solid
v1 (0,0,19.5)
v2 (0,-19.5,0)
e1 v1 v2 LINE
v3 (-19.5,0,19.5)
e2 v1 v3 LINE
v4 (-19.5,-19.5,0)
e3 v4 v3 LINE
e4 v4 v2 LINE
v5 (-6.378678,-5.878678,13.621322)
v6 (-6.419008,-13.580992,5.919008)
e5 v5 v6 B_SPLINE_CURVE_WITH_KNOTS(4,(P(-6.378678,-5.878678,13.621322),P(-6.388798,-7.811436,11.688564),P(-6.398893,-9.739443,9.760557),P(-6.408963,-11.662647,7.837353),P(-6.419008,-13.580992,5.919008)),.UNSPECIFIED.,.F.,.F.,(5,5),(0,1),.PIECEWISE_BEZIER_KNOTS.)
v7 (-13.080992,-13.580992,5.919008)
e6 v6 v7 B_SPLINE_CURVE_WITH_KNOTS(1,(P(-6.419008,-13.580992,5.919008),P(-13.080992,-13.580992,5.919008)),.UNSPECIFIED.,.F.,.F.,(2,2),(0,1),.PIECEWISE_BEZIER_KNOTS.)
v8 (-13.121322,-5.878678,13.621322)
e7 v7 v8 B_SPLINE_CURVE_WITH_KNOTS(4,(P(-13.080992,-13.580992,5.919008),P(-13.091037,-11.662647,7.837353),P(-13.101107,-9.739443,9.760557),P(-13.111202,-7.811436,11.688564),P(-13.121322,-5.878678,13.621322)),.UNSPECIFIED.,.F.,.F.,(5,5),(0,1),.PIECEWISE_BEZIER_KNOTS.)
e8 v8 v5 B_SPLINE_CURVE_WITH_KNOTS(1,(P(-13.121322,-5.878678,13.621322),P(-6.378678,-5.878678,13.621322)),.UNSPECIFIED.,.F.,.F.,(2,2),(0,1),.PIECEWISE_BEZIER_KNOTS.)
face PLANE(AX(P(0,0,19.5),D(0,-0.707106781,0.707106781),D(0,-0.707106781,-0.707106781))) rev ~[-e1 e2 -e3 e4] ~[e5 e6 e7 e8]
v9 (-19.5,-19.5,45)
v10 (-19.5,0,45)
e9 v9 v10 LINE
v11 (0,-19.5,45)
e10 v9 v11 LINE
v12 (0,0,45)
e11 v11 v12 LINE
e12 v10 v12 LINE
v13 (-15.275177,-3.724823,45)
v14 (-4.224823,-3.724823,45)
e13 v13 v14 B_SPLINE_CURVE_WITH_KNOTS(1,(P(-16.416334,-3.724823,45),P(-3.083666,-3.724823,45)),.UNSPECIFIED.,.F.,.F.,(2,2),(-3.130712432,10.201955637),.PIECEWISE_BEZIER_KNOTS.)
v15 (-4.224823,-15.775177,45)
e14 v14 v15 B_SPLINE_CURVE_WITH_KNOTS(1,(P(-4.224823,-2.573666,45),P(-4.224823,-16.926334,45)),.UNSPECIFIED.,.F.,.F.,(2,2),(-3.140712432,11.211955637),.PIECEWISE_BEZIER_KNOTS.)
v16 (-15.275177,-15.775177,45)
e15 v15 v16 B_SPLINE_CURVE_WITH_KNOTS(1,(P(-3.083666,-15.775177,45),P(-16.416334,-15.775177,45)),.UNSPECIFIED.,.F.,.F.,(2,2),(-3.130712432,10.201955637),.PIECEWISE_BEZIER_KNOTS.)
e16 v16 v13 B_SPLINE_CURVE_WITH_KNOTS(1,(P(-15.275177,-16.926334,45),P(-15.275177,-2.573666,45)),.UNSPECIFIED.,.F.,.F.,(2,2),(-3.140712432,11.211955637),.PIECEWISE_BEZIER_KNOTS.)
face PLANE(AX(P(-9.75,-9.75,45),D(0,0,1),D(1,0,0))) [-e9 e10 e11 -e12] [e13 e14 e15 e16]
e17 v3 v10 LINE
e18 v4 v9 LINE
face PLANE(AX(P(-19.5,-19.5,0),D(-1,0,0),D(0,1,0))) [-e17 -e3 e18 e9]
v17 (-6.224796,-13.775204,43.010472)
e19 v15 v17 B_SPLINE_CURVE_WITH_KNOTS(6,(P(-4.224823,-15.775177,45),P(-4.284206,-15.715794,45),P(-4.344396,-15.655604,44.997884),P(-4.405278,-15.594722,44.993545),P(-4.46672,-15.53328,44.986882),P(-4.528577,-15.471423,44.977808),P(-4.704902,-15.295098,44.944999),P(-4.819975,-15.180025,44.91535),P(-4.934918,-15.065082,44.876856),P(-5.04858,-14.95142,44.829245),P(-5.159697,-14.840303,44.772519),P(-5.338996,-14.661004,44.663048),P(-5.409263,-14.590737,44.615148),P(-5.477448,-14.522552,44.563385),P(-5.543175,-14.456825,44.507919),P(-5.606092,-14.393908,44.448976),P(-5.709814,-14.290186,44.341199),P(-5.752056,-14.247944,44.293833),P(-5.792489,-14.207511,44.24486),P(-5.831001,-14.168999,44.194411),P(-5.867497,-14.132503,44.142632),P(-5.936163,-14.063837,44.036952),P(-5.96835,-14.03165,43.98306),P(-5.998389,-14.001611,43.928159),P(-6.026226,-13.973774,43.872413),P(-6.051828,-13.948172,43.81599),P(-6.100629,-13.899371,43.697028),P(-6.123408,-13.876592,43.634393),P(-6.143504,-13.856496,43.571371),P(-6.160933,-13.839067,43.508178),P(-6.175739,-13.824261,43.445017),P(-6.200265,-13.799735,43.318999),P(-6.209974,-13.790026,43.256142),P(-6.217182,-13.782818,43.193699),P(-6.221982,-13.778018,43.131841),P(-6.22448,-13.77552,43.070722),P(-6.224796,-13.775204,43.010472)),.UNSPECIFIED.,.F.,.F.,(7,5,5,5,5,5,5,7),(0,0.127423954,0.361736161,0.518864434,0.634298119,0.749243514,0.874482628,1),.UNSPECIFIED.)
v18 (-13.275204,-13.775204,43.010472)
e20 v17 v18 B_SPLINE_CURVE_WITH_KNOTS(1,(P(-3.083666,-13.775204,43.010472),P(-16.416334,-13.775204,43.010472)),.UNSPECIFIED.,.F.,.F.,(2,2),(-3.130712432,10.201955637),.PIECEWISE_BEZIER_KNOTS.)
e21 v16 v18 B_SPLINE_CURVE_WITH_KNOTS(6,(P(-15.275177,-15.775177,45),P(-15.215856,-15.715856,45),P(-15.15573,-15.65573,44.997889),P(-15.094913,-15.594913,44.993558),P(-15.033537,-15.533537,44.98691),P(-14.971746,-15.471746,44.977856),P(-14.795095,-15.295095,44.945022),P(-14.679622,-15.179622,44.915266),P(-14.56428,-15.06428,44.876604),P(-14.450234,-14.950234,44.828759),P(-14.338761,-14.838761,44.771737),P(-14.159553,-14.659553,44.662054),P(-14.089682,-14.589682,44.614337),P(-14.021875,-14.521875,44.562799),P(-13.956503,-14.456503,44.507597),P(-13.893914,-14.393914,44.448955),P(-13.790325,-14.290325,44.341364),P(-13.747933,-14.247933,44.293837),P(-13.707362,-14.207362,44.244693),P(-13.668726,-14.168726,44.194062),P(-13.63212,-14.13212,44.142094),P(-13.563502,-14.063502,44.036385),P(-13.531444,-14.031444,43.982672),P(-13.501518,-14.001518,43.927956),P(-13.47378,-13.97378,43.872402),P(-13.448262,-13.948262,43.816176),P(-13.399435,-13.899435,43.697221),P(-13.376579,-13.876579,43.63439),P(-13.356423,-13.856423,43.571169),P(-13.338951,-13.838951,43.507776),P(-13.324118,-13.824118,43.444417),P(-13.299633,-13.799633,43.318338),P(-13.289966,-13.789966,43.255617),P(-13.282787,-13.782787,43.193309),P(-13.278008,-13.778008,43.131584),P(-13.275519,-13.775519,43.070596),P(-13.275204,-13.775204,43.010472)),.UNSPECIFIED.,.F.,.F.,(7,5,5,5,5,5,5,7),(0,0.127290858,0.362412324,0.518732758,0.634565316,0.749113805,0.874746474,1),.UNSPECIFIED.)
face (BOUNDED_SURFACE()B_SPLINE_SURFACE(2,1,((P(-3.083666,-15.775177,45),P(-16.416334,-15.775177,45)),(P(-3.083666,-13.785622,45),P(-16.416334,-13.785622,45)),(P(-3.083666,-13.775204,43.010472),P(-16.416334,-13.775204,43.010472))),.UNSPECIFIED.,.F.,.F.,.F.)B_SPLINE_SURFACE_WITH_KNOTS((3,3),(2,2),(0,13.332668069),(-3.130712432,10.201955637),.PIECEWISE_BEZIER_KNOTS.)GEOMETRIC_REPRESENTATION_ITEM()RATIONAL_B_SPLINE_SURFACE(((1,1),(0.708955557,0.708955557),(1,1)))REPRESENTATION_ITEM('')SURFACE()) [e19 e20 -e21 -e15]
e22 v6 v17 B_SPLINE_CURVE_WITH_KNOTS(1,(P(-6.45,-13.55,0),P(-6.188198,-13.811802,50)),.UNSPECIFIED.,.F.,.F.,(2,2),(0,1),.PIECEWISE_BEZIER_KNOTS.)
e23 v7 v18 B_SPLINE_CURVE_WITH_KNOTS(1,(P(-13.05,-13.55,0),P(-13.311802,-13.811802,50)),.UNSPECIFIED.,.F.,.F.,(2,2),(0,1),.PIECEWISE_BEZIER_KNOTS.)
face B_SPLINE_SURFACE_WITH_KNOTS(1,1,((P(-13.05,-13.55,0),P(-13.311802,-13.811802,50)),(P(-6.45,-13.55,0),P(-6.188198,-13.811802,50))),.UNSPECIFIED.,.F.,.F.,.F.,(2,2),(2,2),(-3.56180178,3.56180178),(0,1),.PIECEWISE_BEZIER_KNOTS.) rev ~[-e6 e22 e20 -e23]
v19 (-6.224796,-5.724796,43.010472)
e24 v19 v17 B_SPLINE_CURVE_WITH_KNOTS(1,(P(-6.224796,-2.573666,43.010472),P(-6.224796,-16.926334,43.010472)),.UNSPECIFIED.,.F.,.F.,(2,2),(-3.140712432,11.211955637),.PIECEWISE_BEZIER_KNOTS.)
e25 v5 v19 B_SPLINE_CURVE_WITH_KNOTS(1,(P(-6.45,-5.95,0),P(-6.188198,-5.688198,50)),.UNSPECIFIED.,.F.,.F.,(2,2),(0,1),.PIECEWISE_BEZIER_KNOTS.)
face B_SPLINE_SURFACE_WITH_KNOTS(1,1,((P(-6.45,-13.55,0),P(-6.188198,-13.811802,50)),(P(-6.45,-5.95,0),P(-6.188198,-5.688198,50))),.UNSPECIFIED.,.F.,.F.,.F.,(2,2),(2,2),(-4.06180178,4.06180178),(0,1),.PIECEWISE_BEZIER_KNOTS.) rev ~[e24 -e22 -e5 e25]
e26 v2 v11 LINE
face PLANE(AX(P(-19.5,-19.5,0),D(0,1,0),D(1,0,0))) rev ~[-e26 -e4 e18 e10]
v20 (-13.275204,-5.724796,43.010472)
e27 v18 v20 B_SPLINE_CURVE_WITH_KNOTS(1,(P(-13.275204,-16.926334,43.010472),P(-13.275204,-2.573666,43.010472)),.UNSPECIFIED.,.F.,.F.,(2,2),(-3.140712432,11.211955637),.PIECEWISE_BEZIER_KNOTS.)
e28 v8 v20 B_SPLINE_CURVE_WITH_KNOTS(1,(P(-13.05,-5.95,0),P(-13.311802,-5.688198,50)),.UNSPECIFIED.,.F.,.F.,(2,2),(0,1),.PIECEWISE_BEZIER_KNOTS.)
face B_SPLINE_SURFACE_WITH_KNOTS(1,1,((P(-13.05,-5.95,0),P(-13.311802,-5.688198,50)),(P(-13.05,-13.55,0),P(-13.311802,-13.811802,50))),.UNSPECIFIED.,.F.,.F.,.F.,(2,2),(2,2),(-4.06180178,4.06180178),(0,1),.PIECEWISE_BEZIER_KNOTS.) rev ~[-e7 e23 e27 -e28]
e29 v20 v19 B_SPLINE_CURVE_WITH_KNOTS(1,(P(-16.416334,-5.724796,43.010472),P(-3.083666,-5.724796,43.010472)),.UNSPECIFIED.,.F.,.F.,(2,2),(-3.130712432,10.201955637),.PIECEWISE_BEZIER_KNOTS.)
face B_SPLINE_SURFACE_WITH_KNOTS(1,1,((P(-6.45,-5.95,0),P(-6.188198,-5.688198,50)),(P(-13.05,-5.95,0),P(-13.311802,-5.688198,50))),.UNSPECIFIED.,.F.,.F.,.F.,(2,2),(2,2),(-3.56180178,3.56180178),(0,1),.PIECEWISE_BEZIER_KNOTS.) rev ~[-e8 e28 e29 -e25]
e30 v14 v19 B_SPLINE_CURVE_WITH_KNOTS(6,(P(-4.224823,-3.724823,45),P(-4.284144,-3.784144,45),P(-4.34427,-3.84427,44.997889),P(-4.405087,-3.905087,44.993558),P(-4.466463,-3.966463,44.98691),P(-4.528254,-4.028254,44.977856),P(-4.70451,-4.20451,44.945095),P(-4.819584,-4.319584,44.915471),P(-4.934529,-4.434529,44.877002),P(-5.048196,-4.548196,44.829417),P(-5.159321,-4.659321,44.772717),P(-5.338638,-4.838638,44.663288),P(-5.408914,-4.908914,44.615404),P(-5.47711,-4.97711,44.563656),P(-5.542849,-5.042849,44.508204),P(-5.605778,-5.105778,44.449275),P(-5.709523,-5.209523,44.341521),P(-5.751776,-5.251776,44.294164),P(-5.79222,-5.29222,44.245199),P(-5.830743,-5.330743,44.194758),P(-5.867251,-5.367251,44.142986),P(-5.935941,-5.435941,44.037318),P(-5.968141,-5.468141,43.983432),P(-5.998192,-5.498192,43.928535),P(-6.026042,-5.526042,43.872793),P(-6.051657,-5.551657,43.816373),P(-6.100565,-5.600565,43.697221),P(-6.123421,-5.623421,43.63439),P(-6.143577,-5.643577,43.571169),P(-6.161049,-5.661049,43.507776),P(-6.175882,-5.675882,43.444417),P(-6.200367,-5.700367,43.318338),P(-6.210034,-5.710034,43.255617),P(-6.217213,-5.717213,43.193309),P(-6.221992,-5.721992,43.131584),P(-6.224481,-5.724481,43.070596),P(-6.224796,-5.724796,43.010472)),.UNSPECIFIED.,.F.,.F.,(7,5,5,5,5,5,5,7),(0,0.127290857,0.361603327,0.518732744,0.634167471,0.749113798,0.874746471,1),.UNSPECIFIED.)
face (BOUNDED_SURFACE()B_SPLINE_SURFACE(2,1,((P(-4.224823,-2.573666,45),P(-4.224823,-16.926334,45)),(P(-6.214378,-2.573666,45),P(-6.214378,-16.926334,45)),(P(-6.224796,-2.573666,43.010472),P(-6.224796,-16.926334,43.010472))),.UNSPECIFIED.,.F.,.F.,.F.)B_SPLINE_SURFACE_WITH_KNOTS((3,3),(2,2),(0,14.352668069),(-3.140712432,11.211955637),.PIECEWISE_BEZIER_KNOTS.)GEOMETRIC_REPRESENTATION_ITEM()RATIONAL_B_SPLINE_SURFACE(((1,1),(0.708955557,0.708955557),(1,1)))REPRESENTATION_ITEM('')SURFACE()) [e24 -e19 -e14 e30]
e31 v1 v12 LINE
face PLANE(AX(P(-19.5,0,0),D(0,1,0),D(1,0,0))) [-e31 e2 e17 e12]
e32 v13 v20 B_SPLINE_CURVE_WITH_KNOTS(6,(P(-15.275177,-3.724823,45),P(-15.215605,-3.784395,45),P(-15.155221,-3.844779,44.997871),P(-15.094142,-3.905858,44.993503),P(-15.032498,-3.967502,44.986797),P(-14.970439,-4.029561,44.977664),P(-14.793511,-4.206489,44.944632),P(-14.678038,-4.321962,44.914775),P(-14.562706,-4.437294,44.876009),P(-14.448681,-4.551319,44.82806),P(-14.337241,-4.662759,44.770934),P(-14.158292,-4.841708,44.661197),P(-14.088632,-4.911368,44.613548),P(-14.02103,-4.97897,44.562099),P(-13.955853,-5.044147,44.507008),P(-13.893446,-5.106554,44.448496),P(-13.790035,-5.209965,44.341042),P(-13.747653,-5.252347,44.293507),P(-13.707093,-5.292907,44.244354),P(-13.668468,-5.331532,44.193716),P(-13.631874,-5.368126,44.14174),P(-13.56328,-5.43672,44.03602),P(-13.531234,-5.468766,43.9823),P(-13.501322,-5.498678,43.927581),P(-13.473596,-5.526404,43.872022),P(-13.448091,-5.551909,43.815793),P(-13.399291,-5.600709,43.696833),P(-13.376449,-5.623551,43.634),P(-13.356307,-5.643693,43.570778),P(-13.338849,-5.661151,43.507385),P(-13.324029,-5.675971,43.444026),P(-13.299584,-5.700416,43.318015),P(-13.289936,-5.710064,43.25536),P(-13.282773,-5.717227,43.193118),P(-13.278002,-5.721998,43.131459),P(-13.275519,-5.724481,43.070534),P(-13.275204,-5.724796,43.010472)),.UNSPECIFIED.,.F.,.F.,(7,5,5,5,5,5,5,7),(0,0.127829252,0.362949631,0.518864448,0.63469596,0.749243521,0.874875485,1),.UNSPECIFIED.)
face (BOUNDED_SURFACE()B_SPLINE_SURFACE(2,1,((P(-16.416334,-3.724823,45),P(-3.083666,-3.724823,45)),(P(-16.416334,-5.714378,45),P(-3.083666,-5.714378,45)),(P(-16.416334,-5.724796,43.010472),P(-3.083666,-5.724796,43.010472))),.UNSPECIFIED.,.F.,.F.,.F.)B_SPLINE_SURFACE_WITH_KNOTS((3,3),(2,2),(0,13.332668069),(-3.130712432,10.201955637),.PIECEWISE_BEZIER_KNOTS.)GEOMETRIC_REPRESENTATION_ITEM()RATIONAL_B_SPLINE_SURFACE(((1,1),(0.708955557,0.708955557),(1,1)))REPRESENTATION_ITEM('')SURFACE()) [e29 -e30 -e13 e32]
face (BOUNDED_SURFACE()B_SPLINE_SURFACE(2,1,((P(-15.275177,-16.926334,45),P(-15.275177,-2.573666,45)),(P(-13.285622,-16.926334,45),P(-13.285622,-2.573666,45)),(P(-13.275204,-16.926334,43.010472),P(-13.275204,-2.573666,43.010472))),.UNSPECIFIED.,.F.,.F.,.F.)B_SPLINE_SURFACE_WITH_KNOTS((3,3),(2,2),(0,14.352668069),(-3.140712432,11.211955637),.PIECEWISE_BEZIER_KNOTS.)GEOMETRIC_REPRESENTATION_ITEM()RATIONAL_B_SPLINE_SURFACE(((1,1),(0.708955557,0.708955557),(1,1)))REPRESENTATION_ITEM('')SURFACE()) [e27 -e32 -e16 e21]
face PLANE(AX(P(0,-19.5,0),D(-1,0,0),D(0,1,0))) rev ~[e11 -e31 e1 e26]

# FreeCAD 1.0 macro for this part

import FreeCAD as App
import Part
import Sketcher

V = App.Vector
Q = App.Units.Quantity


def edges_at(feature, points):
    """Names of the edges that pass closest to the given points."""
    edges = feature.Shape.Edges
    near = lambda p: min(range(len(edges)), key=lambda i: edges[i].distToShape(Part.Vertex(*p))[0])
    return sorted({f"Edge{near(p) + 1}" for p in points})

doc = App.newDocument("Part")
body = doc.addObject("PartDesign::Body", "Body")

# Sketch on XY plane
sketch1 = body.newObject("Sketcher::SketchObject", "Sketch")
sketch1.AttachmentSupport = (doc.getObject("XY_Plane"), [""])
sketch1.MapMode = "FlatFace"
sketch1.addGeometry([
    Part.LineSegment(V(-20, 0, 0), V(-20, -20, 0)),  # 0
    Part.LineSegment(V(-20, -20, 0), V(0, -20, 0)),  # 1
    Part.LineSegment(V(0, -20, 0), V(0, 0, 0)),  # 2
    Part.LineSegment(V(0, 0, 0), V(-20, 0, 0)),  # 3
    Part.LineSegment(V(-6, -14, 0), V(-13, -14, 0)),  # 4
    Part.LineSegment(V(-13, -14, 0), V(-13, -6, 0)),  # 5
    Part.LineSegment(V(-13, -6, 0), V(-6, -6, 0)),  # 6
    Part.LineSegment(V(-6, -6, 0), V(-6, -14, 0)),  # 7
], False)
sketch1.addConstraint([
    Sketcher.Constraint("Coincident", 0, 2, 1, 1),
    Sketcher.Constraint("Coincident", 1, 2, 2, 1),
    Sketcher.Constraint("Coincident", 2, 2, 3, 1),
    Sketcher.Constraint("Coincident", 3, 2, 0, 1),
    Sketcher.Constraint("Coincident", 4, 2, 5, 1),
    Sketcher.Constraint("Coincident", 5, 2, 6, 1),
    Sketcher.Constraint("Coincident", 6, 2, 7, 1),
    Sketcher.Constraint("Coincident", 7, 2, 4, 1),
    Sketcher.Constraint("Vertical", 0),
    Sketcher.Constraint("Horizontal", 1),
    Sketcher.Constraint("Vertical", 2),
    Sketcher.Constraint("Horizontal", 3),
    Sketcher.Constraint("Horizontal", 4),
    Sketcher.Constraint("Vertical", 5),
    Sketcher.Constraint("Horizontal", 6),
    Sketcher.Constraint("Vertical", 7),
    Sketcher.Constraint("Coincident", 2, 2, -1, 1),
    Sketcher.Constraint("Equal", 3, 0),
    Sketcher.Constraint("DistanceX", 1, 1, 1, 2, Q("19.5 mm")),
    Sketcher.Constraint("DistanceX", 4, 2, 4, 1, Q("6.6 mm")),
    Sketcher.Constraint("DistanceY", 5, 1, 5, 2, Q("7.6 mm")),
    Sketcher.Constraint("DistanceX", 4, 2, -1, 1, Q("13.05 mm")),
    Sketcher.Constraint("DistanceY", 4, 2, -1, 1, Q("13.55 mm")),
])
pad1 = body.newObject("PartDesign::Pad", "Pad")
pad1.Profile = sketch1
pad1.Length = 45

# Sketch on YZ plane
sketch2 = body.newObject("Sketcher::SketchObject", "Sketch001")
sketch2.AttachmentSupport = (doc.getObject("YZ_Plane"), [""])
sketch2.MapMode = "FlatFace"
sketch2.addGeometry([
    Part.LineSegment(V(0, 20, 0), V(-20, 0, 0)),
    Part.LineSegment(V(-20, 0, 0), V(0, 0, 0)),
    Part.LineSegment(V(0, 0, 0), V(0, 20, 0)),
], False)
sketch2.addConstraint([
    Sketcher.Constraint("Coincident", 0, 2, 1, 1),
    Sketcher.Constraint("Coincident", 1, 2, 2, 1),
    Sketcher.Constraint("Coincident", 2, 2, 0, 1),
    Sketcher.Constraint("Horizontal", 1),
    Sketcher.Constraint("Vertical", 2),
    Sketcher.Constraint("Coincident", 1, 2, -1, 1),
    Sketcher.Constraint("Equal", 1, 2),
    Sketcher.Constraint("DistanceX", 1, 1, 1, 2, Q("19.5 mm")),
])
pocket1 = body.newObject("PartDesign::Pocket", "Pocket")
pocket1.Profile = sketch2
pocket1.Length = 25

# Sketch on XY plane
sketch3 = body.newObject("Sketcher::SketchObject", "Sketch002")
sketch3.AttachmentSupport = (doc.getObject("XY_Plane"), [""])
sketch3.MapMode = "FlatFace"
sketch3.addGeometry([
    Part.LineSegment(V(-13, -6, 0), V(-13, -14, 0)),
    Part.LineSegment(V(-13, -14, 0), V(-6, -14, 0)),
    Part.LineSegment(V(-6, -14, 0), V(-6, -6, 0)),
    Part.LineSegment(V(-6, -6, 0), V(-13, -6, 0)),
], False)
sketch3.addConstraint([
    Sketcher.Constraint("Coincident", 0, 2, 1, 1),
    Sketcher.Constraint("Coincident", 1, 2, 2, 1),
    Sketcher.Constraint("Coincident", 2, 2, 3, 1),
    Sketcher.Constraint("Coincident", 3, 2, 0, 1),
    Sketcher.Constraint("Vertical", 0),
    Sketcher.Constraint("Horizontal", 1),
    Sketcher.Constraint("Vertical", 2),
    Sketcher.Constraint("Horizontal", 3),
    Sketcher.Constraint("DistanceX", 1, 1, 1, 2, Q("6.6 mm")),
    Sketcher.Constraint("DistanceY", 0, 2, 0, 1, Q("7.6 mm")),
    Sketcher.Constraint("DistanceX", 0, 2, -1, 1, Q("13.05 mm")),
    Sketcher.Constraint("DistanceY", 0, 2, -1, 1, Q("13.55 mm")),
])
pocket2 = body.newObject("PartDesign::Pocket", "Pocket001")
pocket2.Profile = sketch3
pocket2.Length = 50
pocket2.Reversed = True
pocket2.TaperAngle = 0.3
doc.recompute()

fillet = body.newObject("PartDesign::Fillet", "Fillet")
fillet.Base = (pocket2, edges_at(pocket2, [
    (-9.75, -5.714, 45),
    (-13.286, -9.75, 45),
    (-6.214, -9.75, 45),
    (-9.75, -13.786, 45),
]))
fillet.Radius = 2

doc.recompute()
